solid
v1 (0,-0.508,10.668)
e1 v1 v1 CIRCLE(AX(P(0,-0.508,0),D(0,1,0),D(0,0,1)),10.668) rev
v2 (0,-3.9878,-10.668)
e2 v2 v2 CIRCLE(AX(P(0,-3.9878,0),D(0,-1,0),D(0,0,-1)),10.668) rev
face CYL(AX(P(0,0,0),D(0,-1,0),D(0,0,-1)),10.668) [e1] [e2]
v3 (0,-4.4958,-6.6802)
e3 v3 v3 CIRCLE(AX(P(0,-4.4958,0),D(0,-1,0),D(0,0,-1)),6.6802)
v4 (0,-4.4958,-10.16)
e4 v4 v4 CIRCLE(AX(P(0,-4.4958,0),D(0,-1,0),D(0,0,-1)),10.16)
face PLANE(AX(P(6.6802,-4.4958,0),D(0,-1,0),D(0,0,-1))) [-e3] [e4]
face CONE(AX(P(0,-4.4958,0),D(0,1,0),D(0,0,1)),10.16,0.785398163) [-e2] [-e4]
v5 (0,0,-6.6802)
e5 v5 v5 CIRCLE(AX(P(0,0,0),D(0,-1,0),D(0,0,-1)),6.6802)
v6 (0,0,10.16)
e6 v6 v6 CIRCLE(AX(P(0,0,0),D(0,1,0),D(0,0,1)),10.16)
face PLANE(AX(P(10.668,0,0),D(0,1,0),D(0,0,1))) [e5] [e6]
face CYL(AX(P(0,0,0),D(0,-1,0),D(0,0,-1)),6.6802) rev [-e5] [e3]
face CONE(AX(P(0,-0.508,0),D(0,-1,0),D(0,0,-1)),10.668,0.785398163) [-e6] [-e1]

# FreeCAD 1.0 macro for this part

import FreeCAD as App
import Part
import Sketcher
Q = App.Units.Quantity


def edges_at(feature, points):
    """Names of the edges that pass closest to the given points."""
    edges = feature.Shape.Edges
    near = lambda p: min(range(len(edges)), key=lambda i: edges[i].distToShape(Part.Vertex(*p))[0])
    return sorted({f"Edge{near(p) + 1}" for p in points})

doc = App.newDocument("Part")
body = doc.addObject("PartDesign::Body", "Body")

sketch1 = body.newObject("Sketcher::SketchObject", "Sketch")
sketch1.AttachmentSupport = (doc.getObject("XY_Plane"), [""])
sketch1.MapMode = "FlatFace"
sketch1.addGeometry(Part.LineSegment(App.Vector(6.7, 0, 0), App.Vector(6.7, -4.5, 0)), False)
sketch1.addGeometry(Part.LineSegment(App.Vector(6.7, -4.5, 0), App.Vector(10.7, -4.5, 0)), False)
sketch1.addGeometry(Part.LineSegment(App.Vector(10.7, -4.5, 0), App.Vector(10.7, 0, 0)), False)
sketch1.addGeometry(Part.LineSegment(App.Vector(10.7, 0, 0), App.Vector(6.7, 0, 0)), False)
sketch1.addConstraint(Sketcher.Constraint("Coincident", 0, 2, 1, 1))
sketch1.addConstraint(Sketcher.Constraint("Coincident", 1, 2, 2, 1))
sketch1.addConstraint(Sketcher.Constraint("Coincident", 2, 2, 3, 1))
sketch1.addConstraint(Sketcher.Constraint("Coincident", 3, 2, 0, 1))
sketch1.addConstraint(Sketcher.Constraint("Vertical", 0))
sketch1.addConstraint(Sketcher.Constraint("Horizontal", 1))
sketch1.addConstraint(Sketcher.Constraint("Vertical", 2))
sketch1.addConstraint(Sketcher.Constraint("Horizontal", 3))
sketch1.addConstraint(Sketcher.Constraint("PointOnObject", 2, 2, -1))
sketch1.addConstraint(Sketcher.Constraint("DistanceX", 1, 1, 1, 2, Q("0.157 in")))
sketch1.addConstraint(Sketcher.Constraint("DistanceY", 0, 2, 0, 1, Q("0.177 in")))
sketch1.addConstraint(Sketcher.Constraint("DistanceX", -1, 1, 1, 2, Q("0.42 in")))
revolution = body.newObject("PartDesign::Revolution", "Revolution")
revolution.Profile = sketch1
revolution.ReferenceAxis = (sketch1, ["V_Axis"])
revolution.Angle = 360
doc.recompute()

chamfer = body.newObject("PartDesign::Chamfer", "Chamfer")
chamfer.Base = (revolution, edges_at(revolution, [(-10.668, -4.496, 0), (-10.668, 0, 0)]))
chamfer.Size = Q("0.02 in")

doc.recompute()
